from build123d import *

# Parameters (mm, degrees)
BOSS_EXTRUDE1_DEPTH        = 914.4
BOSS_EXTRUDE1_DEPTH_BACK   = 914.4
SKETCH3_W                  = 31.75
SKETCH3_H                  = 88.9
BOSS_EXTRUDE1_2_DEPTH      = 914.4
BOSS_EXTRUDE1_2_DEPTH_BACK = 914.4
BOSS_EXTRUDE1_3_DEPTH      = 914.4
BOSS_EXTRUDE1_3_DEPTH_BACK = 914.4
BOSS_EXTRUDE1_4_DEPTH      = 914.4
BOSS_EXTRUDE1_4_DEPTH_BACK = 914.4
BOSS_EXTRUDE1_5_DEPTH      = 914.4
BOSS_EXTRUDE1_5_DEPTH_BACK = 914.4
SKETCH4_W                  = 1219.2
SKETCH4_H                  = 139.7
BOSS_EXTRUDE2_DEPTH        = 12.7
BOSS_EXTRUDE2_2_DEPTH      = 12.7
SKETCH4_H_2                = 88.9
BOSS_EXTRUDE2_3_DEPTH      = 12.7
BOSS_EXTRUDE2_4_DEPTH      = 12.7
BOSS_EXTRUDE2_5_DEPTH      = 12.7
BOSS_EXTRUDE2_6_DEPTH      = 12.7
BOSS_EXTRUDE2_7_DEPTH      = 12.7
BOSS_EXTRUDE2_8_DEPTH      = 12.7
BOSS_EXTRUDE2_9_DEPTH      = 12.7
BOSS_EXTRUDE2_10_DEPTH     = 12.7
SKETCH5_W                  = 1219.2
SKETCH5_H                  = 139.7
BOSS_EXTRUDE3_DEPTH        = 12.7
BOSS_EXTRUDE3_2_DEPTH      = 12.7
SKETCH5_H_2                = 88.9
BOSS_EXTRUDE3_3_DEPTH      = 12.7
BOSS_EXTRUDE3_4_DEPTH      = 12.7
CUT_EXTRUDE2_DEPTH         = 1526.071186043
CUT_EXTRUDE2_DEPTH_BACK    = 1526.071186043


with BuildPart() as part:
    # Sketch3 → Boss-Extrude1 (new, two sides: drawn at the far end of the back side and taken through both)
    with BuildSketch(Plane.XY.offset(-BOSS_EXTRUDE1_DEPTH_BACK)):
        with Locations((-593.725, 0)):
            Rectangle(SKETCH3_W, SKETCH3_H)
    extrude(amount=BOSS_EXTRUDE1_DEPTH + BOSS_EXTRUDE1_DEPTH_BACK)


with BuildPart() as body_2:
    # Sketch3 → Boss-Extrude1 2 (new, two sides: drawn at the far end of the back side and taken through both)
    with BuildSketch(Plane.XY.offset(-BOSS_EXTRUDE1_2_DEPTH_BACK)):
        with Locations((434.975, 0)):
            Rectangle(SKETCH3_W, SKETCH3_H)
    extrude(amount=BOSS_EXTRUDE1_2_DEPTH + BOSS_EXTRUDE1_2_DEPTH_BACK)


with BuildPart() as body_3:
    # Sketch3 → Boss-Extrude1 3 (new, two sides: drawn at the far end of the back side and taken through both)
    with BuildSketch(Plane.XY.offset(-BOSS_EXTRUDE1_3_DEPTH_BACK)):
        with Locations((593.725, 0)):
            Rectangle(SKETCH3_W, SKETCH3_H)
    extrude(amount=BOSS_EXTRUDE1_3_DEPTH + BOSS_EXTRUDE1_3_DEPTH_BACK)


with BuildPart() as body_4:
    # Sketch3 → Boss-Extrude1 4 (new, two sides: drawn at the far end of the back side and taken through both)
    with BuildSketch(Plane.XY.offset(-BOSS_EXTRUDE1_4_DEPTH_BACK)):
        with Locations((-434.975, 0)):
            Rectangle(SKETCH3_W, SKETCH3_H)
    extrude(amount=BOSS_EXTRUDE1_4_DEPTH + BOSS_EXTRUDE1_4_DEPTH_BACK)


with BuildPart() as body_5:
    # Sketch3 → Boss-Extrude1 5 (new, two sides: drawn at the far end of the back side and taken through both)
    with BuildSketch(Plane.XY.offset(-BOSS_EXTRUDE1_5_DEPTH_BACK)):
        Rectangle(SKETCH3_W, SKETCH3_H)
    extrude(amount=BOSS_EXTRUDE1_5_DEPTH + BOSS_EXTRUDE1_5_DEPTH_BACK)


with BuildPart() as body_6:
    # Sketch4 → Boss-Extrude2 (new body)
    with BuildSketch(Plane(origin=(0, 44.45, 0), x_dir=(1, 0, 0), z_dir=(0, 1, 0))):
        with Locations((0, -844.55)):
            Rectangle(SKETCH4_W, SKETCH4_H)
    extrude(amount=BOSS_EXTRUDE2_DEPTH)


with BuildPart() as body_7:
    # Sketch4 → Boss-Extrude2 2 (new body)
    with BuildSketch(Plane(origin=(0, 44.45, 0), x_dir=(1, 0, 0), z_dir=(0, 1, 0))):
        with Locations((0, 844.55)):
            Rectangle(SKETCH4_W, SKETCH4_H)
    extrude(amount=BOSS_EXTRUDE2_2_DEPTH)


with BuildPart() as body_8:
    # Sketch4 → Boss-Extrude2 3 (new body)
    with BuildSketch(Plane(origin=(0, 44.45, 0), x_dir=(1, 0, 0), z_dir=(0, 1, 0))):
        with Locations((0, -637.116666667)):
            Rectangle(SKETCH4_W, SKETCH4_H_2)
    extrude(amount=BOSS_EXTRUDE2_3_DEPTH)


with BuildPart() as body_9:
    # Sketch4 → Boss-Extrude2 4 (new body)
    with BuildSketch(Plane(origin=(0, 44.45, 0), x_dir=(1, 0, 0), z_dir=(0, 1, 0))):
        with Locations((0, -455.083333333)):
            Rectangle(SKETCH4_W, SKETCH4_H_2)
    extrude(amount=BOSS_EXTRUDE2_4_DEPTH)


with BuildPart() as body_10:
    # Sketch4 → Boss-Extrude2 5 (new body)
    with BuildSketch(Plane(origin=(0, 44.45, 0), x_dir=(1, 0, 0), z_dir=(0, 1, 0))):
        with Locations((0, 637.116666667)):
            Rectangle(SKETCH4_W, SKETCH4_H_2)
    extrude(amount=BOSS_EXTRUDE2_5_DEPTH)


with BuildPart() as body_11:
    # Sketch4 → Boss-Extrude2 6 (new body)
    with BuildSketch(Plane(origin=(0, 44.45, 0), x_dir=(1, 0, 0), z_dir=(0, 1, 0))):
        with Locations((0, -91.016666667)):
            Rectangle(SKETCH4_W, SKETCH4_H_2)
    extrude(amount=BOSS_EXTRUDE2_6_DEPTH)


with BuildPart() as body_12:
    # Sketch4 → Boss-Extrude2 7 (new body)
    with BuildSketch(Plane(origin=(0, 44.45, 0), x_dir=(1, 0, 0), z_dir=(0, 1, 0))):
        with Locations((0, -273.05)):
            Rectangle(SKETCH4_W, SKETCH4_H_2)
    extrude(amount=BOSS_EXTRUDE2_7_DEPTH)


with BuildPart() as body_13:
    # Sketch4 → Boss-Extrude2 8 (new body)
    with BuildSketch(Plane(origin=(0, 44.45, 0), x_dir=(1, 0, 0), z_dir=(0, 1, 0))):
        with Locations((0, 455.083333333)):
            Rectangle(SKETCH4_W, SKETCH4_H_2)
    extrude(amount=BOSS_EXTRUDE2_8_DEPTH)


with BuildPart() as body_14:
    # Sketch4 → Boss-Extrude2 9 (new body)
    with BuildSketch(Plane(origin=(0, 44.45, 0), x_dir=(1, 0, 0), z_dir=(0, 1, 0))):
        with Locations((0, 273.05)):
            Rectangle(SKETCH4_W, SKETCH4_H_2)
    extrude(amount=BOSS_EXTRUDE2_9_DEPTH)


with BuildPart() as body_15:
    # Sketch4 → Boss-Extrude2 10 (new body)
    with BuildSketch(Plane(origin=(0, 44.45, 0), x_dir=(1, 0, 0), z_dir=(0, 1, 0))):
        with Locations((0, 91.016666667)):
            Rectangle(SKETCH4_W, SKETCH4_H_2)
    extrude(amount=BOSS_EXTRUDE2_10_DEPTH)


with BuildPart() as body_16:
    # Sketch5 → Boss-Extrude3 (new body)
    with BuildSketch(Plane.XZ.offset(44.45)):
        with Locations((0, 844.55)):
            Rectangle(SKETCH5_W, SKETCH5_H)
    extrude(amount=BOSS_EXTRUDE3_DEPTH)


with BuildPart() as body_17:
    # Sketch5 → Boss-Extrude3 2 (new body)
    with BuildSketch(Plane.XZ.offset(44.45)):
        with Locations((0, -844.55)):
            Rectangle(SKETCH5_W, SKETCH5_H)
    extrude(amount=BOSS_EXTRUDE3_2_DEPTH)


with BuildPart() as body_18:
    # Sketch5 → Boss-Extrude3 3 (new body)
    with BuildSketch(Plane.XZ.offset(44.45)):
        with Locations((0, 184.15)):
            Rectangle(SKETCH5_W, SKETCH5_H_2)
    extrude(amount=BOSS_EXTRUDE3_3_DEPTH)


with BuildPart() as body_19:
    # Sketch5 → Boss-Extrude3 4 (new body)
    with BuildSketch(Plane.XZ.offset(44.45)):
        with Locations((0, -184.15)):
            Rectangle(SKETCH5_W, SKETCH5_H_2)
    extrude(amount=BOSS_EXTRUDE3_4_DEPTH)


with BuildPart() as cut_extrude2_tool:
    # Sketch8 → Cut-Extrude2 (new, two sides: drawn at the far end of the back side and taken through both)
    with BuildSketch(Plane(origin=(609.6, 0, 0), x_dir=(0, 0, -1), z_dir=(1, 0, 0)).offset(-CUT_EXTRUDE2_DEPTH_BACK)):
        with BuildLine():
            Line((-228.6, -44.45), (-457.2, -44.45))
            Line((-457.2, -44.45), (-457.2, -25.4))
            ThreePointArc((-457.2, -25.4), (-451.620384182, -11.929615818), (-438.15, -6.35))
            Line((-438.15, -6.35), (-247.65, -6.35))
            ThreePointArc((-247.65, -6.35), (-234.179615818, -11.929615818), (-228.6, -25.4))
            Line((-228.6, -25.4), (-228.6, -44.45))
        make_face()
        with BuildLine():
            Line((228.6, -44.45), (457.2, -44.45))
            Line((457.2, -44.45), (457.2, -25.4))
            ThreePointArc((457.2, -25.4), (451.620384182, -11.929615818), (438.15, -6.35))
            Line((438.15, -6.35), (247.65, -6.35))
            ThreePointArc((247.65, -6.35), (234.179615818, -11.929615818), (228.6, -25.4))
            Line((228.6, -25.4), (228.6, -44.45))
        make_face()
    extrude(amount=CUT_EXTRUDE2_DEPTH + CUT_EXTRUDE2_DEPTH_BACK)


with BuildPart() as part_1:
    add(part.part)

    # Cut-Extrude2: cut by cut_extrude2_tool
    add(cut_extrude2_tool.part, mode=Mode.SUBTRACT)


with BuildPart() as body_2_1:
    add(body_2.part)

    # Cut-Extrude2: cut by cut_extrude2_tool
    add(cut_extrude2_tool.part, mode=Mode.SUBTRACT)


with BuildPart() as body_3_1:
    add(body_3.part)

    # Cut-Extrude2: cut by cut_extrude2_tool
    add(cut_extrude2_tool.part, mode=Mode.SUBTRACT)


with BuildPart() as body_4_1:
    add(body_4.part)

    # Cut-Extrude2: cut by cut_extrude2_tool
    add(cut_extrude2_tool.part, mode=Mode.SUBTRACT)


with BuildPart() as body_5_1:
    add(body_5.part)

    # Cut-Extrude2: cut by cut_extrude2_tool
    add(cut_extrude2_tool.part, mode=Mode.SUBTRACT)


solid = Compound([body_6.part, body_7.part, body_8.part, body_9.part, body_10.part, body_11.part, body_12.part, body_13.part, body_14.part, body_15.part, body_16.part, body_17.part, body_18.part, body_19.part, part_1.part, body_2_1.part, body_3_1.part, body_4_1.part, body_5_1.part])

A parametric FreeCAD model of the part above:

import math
import FreeCAD as App
import Part
import Sketcher

V = App.Vector
Q = App.Units.Quantity

doc = App.newDocument("Part")
body = doc.addObject("PartDesign::Body", "Body")

# Sketch on XY plane
sketch1 = body.newObject("Sketcher::SketchObject", "Sketch")
sketch1.AttachmentSupport = (doc.getObject("XY_Plane"), [""])
sketch1.MapMode = "FlatFace"
sketch1.addGeometry([
    Part.LineSegment(V(-610, 44, 0), V(-610, -44, 0)),
    Part.LineSegment(V(-610, -44, 0), V(-578, -44, 0)),
    Part.LineSegment(V(-578, -44, 0), V(-578, 44, 0)),
    Part.LineSegment(V(-578, 44, 0), V(-610, 44, 0)),
], False)
sketch1.addConstraint([
    Sketcher.Constraint("Coincident", 0, 2, 1, 1),
    Sketcher.Constraint("Coincident", 1, 2, 2, 1),
    Sketcher.Constraint("Coincident", 2, 2, 3, 1),
    Sketcher.Constraint("Coincident", 3, 2, 0, 1),
    Sketcher.Constraint("Vertical", 0),
    Sketcher.Constraint("Horizontal", 1),
    Sketcher.Constraint("Vertical", 2),
    Sketcher.Constraint("Horizontal", 3),
    Sketcher.Constraint("DistanceY", 0, 2, 0, 1, Q("3.5 in")),
    Sketcher.Constraint("DistanceX", 0, 2, -1, 1, Q("24 in")),
    Sketcher.Constraint("DistanceX", 1, 1, 1, 2, Q("1.25 in")),
    Sketcher.Constraint("DistanceY", 0, 2, -1, 1, Q("1.75 in")),
])
pad1 = body.newObject("PartDesign::Pad", "Pad")
pad1.Profile = sketch1
pad1.Type = "TwoLengths"
pad1.Length = Q("36 in")
pad1.Length2 = Q("36 in")
body2 = doc.addObject("PartDesign::Body", "Body001")

# Sketch on XY plane
sketch2 = body2.newObject("Sketcher::SketchObject", "Sketch001")
sketch2.AttachmentSupport = (doc.getObject("XY_Plane001"), [""])
sketch2.MapMode = "FlatFace"
sketch2.addGeometry([
    Part.LineSegment(V(419, 44, 0), V(419, -44, 0)),
    Part.LineSegment(V(419, -44, 0), V(451, -44, 0)),
    Part.LineSegment(V(451, -44, 0), V(451, 44, 0)),
    Part.LineSegment(V(451, 44, 0), V(419, 44, 0)),
], False)
sketch2.addConstraint([
    Sketcher.Constraint("Coincident", 0, 2, 1, 1),
    Sketcher.Constraint("Coincident", 1, 2, 2, 1),
    Sketcher.Constraint("Coincident", 2, 2, 3, 1),
    Sketcher.Constraint("Coincident", 3, 2, 0, 1),
    Sketcher.Constraint("Vertical", 0),
    Sketcher.Constraint("Horizontal", 1),
    Sketcher.Constraint("Vertical", 2),
    Sketcher.Constraint("Horizontal", 3),
    Sketcher.Constraint("DistanceY", 0, 2, 0, 1, Q("3.5 in")),
    Sketcher.Constraint("DistanceX", 1, 1, 1, 2, Q("1.25 in")),
    Sketcher.Constraint("DistanceX", -1, 1, 0, 2, Q("16.5 in")),
    Sketcher.Constraint("DistanceY", 0, 2, -1, 1, Q("1.75 in")),
])
pad2 = body2.newObject("PartDesign::Pad", "Pad001")
pad2.Profile = sketch2
pad2.Type = "TwoLengths"
pad2.Length = Q("36 in")
pad2.Length2 = Q("36 in")
body3 = doc.addObject("PartDesign::Body", "Body002")

# Sketch on XY plane
sketch3 = body3.newObject("Sketcher::SketchObject", "Sketch002")
sketch3.AttachmentSupport = (doc.getObject("XY_Plane002"), [""])
sketch3.MapMode = "FlatFace"
sketch3.addGeometry([
    Part.LineSegment(V(578, 44, 0), V(578, -44, 0)),
    Part.LineSegment(V(578, -44, 0), V(610, -44, 0)),
    Part.LineSegment(V(610, -44, 0), V(610, 44, 0)),
    Part.LineSegment(V(610, 44, 0), V(578, 44, 0)),
], False)
sketch3.addConstraint([
    Sketcher.Constraint("Coincident", 0, 2, 1, 1),
    Sketcher.Constraint("Coincident", 1, 2, 2, 1),
    Sketcher.Constraint("Coincident", 2, 2, 3, 1),
    Sketcher.Constraint("Coincident", 3, 2, 0, 1),
    Sketcher.Constraint("Vertical", 0),
    Sketcher.Constraint("Horizontal", 1),
    Sketcher.Constraint("Vertical", 2),
    Sketcher.Constraint("Horizontal", 3),
    Sketcher.Constraint("DistanceY", 0, 2, 0, 1, Q("3.5 in")),
    Sketcher.Constraint("DistanceX", -1, 1, 1, 2, Q("24 in")),
    Sketcher.Constraint("DistanceX", 1, 1, 1, 2, Q("1.25 in")),
    Sketcher.Constraint("DistanceY", 0, 2, -1, 1, Q("1.75 in")),
])
pad3 = body3.newObject("PartDesign::Pad", "Pad002")
pad3.Profile = sketch3
pad3.Type = "TwoLengths"
pad3.Length = Q("36 in")
pad3.Length2 = Q("36 in")
body4 = doc.addObject("PartDesign::Body", "Body003")

# Sketch on XY plane
sketch4 = body4.newObject("Sketcher::SketchObject", "Sketch003")
sketch4.AttachmentSupport = (doc.getObject("XY_Plane003"), [""])
sketch4.MapMode = "FlatFace"
sketch4.addGeometry([
    Part.LineSegment(V(-451, 44, 0), V(-451, -44, 0)),
    Part.LineSegment(V(-451, -44, 0), V(-419, -44, 0)),
    Part.LineSegment(V(-419, -44, 0), V(-419, 44, 0)),
    Part.LineSegment(V(-419, 44, 0), V(-451, 44, 0)),
], False)
sketch4.addConstraint([
    Sketcher.Constraint("Coincident", 0, 2, 1, 1),
    Sketcher.Constraint("Coincident", 1, 2, 2, 1),
    Sketcher.Constraint("Coincident", 2, 2, 3, 1),
    Sketcher.Constraint("Coincident", 3, 2, 0, 1),
    Sketcher.Constraint("Vertical", 0),
    Sketcher.Constraint("Horizontal", 1),
    Sketcher.Constraint("Vertical", 2),
    Sketcher.Constraint("Horizontal", 3),
    Sketcher.Constraint("DistanceY", 0, 2, 0, 1, Q("3.5 in")),
    Sketcher.Constraint("DistanceX", 1, 1, 1, 2, Q("1.25 in")),
    Sketcher.Constraint("DistanceX", 1, 2, -1, 1, Q("16.5 in")),
    Sketcher.Constraint("DistanceY", 0, 2, -1, 1, Q("1.75 in")),
])
pad4 = body4.newObject("PartDesign::Pad", "Pad003")
pad4.Profile = sketch4
pad4.Type = "TwoLengths"
pad4.Length = Q("36 in")
pad4.Length2 = Q("36 in")
body5 = doc.addObject("PartDesign::Body", "Body004")

# Sketch on XY plane
sketch5 = body5.newObject("Sketcher::SketchObject", "Sketch004")
sketch5.AttachmentSupport = (doc.getObject("XY_Plane004"), [""])
sketch5.MapMode = "FlatFace"
sketch5.addGeometry([
    Part.LineSegment(V(-16, 44, 0), V(-16, -44, 0)),
    Part.LineSegment(V(-16, -44, 0), V(16, -44, 0)),
    Part.LineSegment(V(16, -44, 0), V(16, 44, 0)),
    Part.LineSegment(V(16, 44, 0), V(-16, 44, 0)),
], False)
sketch5.addConstraint([
    Sketcher.Constraint("Coincident", 0, 2, 1, 1),
    Sketcher.Constraint("Coincident", 1, 2, 2, 1),
    Sketcher.Constraint("Coincident", 2, 2, 3, 1),
    Sketcher.Constraint("Coincident", 3, 2, 0, 1),
    Sketcher.Constraint("Vertical", 0),
    Sketcher.Constraint("Horizontal", 1),
    Sketcher.Constraint("Vertical", 2),
    Sketcher.Constraint("Horizontal", 3),
    Sketcher.Constraint("Symmetric", 0, 2, 2, 2, -1, 1),
    Sketcher.Constraint("DistanceY", 0, 2, 0, 1, Q("3.5 in")),
    Sketcher.Constraint("DistanceX", 1, 1, 1, 2, Q("1.25 in")),
])
pad5 = body5.newObject("PartDesign::Pad", "Pad004")
pad5.Profile = sketch5
pad5.Type = "TwoLengths"
pad5.Length = Q("36 in")
pad5.Length2 = Q("36 in")
body6 = doc.addObject("PartDesign::Body", "Body005")

# Sketch on XZ plane
sketch6 = body6.newObject("Sketcher::SketchObject", "Sketch005")
sketch6.AttachmentSupport = (doc.getObject("XZ_Plane005"), [""])
sketch6.MapMode = "FlatFace"
sketch6.AttachmentOffset = App.Placement(V(0, 0, -1.75 * 25.4), App.Rotation())
sketch6.addGeometry([
    Part.LineSegment(V(-610, 775, 0), V(-610, 914, 0)),
    Part.LineSegment(V(-610, 914, 0), V(610, 914, 0)),
    Part.LineSegment(V(610, 914, 0), V(610, 775, 0)),
    Part.LineSegment(V(610, 775, 0), V(-610, 775, 0)),
], False)
sketch6.addConstraint([
    Sketcher.Constraint("Coincident", 0, 2, 1, 1),
    Sketcher.Constraint("Coincident", 1, 2, 2, 1),
    Sketcher.Constraint("Coincident", 2, 2, 3, 1),
    Sketcher.Constraint("Coincident", 3, 2, 0, 1),
    Sketcher.Constraint("Vertical", 0),
    Sketcher.Constraint("Horizontal", 1),
    Sketcher.Constraint("Vertical", 2),
    Sketcher.Constraint("Horizontal", 3),
    Sketcher.Constraint("DistanceX", 1, 1, 1, 2, Q("48 in")),
    Sketcher.Constraint("DistanceY", 0, 1, 0, 2, Q("5.5 in")),
    Sketcher.Constraint("DistanceX", 0, 2, -1, 1, Q("24 in")),
    Sketcher.Constraint("DistanceY", -1, 1, 0, 2, Q("36 in")),
])
pad6 = body6.newObject("PartDesign::Pad", "Pad005")
pad6.Profile = sketch6
pad6.Length = Q("0.5 in")
pad6.Reversed = True
body7 = doc.addObject("PartDesign::Body", "Body006")

# Sketch on XZ plane
sketch7 = body7.newObject("Sketcher::SketchObject", "Sketch006")
sketch7.AttachmentSupport = (doc.getObject("XZ_Plane006"), [""])
sketch7.MapMode = "FlatFace"
sketch7.AttachmentOffset = App.Placement(V(0, 0, -1.75 * 25.4), App.Rotation())
sketch7.addGeometry([
    Part.LineSegment(V(-610, -914, 0), V(-610, -775, 0)),
    Part.LineSegment(V(-610, -775, 0), V(610, -775, 0)),
    Part.LineSegment(V(610, -775, 0), V(610, -914, 0)),
    Part.LineSegment(V(610, -914, 0), V(-610, -914, 0)),
], False)
sketch7.addConstraint([
    Sketcher.Constraint("Coincident", 0, 2, 1, 1),
    Sketcher.Constraint("Coincident", 1, 2, 2, 1),
    Sketcher.Constraint("Coincident", 2, 2, 3, 1),
    Sketcher.Constraint("Coincident", 3, 2, 0, 1),
    Sketcher.Constraint("Vertical", 0),
    Sketcher.Constraint("Horizontal", 1),
    Sketcher.Constraint("Vertical", 2),
    Sketcher.Constraint("Horizontal", 3),
    Sketcher.Constraint("DistanceX", 1, 1, 1, 2, Q("48 in")),
    Sketcher.Constraint("DistanceY", 0, 1, 0, 2, Q("5.5 in")),
    Sketcher.Constraint("DistanceX", 0, 2, -1, 1, Q("24 in")),
    Sketcher.Constraint("DistanceY", 2, 2, -1, 1, Q("36 in")),
])
pad7 = body7.newObject("PartDesign::Pad", "Pad006")
pad7.Profile = sketch7
pad7.Length = Q("0.5 in")
pad7.Reversed = True
body8 = doc.addObject("PartDesign::Body", "Body007")

# Sketch on XZ plane
sketch8 = body8.newObject("Sketcher::SketchObject", "Sketch007")
sketch8.AttachmentSupport = (doc.getObject("XZ_Plane007"), [""])
sketch8.MapMode = "FlatFace"
sketch8.AttachmentOffset = App.Placement(V(0, 0, -1.75 * 25.4), App.Rotation())
sketch8.addGeometry([
    Part.LineSegment(V(-610, 593, 0), V(-610, 682, 0)),
    Part.LineSegment(V(-610, 682, 0), V(610, 682, 0)),
    Part.LineSegment(V(610, 682, 0), V(610, 593, 0)),
    Part.LineSegment(V(610, 593, 0), V(-610, 593, 0)),
], False)
sketch8.addConstraint([
    Sketcher.Constraint("Coincident", 0, 2, 1, 1),
    Sketcher.Constraint("Coincident", 1, 2, 2, 1),
    Sketcher.Constraint("Coincident", 2, 2, 3, 1),
    Sketcher.Constraint("Coincident", 3, 2, 0, 1),
    Sketcher.Constraint("Vertical", 0),
    Sketcher.Constraint("Horizontal", 1),
    Sketcher.Constraint("Vertical", 2),
    Sketcher.Constraint("Horizontal", 3),
    Sketcher.Constraint("DistanceX", 1, 1, 1, 2, Q("48 in")),
    Sketcher.Constraint("DistanceY", 0, 1, 0, 2, Q("3.5 in")),
    Sketcher.Constraint("DistanceX", 0, 2, -1, 1, Q("24 in")),
    Sketcher.Constraint("DistanceY", -1, 1, 0, 2, Q("681.566667 mm")),
])
pad8 = body8.newObject("PartDesign::Pad", "Pad007")
pad8.Profile = sketch8
pad8.Length = Q("0.5 in")
pad8.Reversed = True
body9 = doc.addObject("PartDesign::Body", "Body008")

# Sketch on XZ plane
sketch9 = body9.newObject("Sketcher::SketchObject", "Sketch008")
sketch9.AttachmentSupport = (doc.getObject("XZ_Plane008"), [""])
sketch9.MapMode = "FlatFace"
sketch9.AttachmentOffset = App.Placement(V(0, 0, -1.75 * 25.4), App.Rotation())
sketch9.addGeometry([
    Part.LineSegment(V(-610, 411, 0), V(-610, 500, 0)),
    Part.LineSegment(V(-610, 500, 0), V(610, 500, 0)),
    Part.LineSegment(V(610, 500, 0), V(610, 411, 0)),
    Part.LineSegment(V(610, 411, 0), V(-610, 411, 0)),
], False)
sketch9.addConstraint([
    Sketcher.Constraint("Coincident", 0, 2, 1, 1),
    Sketcher.Constraint("Coincident", 1, 2, 2, 1),
    Sketcher.Constraint("Coincident", 2, 2, 3, 1),
    Sketcher.Constraint("Coincident", 3, 2, 0, 1),
    Sketcher.Constraint("Vertical", 0),
    Sketcher.Constraint("Horizontal", 1),
    Sketcher.Constraint("Vertical", 2),
    Sketcher.Constraint("Horizontal", 3),
    Sketcher.Constraint("DistanceX", 1, 1, 1, 2, Q("48 in")),
    Sketcher.Constraint("DistanceY", 0, 1, 0, 2, Q("3.5 in")),
    Sketcher.Constraint("DistanceX", 0, 2, -1, 1, Q("24 in")),
    Sketcher.Constraint("DistanceY", -1, 1, 0, 2, Q("499.533333 mm")),
])
pad9 = body9.newObject("PartDesign::Pad", "Pad008")
pad9.Profile = sketch9
pad9.Length = Q("0.5 in")
pad9.Reversed = True
body10 = doc.addObject("PartDesign::Body", "Body009")

# Sketch on XZ plane
sketch10 = body10.newObject("Sketcher::SketchObject", "Sketch009")
sketch10.AttachmentSupport = (doc.getObject("XZ_Plane009"), [""])
sketch10.MapMode = "FlatFace"
sketch10.AttachmentOffset = App.Placement(V(0, 0, -1.75 * 25.4), App.Rotation())
sketch10.addGeometry([
    Part.LineSegment(V(-610, -682, 0), V(-610, -593, 0)),
    Part.LineSegment(V(-610, -593, 0), V(610, -593, 0)),
    Part.LineSegment(V(610, -593, 0), V(610, -682, 0)),
    Part.LineSegment(V(610, -682, 0), V(-610, -682, 0)),
], False)
sketch10.addConstraint([
    Sketcher.Constraint("Coincident", 0, 2, 1, 1),
    Sketcher.Constraint("Coincident", 1, 2, 2, 1),
    Sketcher.Constraint("Coincident", 2, 2, 3, 1),
    Sketcher.Constraint("Coincident", 3, 2, 0, 1),
    Sketcher.Constraint("Vertical", 0),
    Sketcher.Constraint("Horizontal", 1),
    Sketcher.Constraint("Vertical", 2),
    Sketcher.Constraint("Horizontal", 3),
    Sketcher.Constraint("DistanceX", 1, 1, 1, 2, Q("48 in")),
    Sketcher.Constraint("DistanceY", 0, 1, 0, 2, Q("3.5 in")),
    Sketcher.Constraint("DistanceX", 0, 2, -1, 1, Q("24 in")),
    Sketcher.Constraint("DistanceY", 0, 2, -1, 1, Q("592.666667 mm")),
])
pad10 = body10.newObject("PartDesign::Pad", "Pad009")
pad10.Profile = sketch10
pad10.Length = Q("0.5 in")
pad10.Reversed = True
body11 = doc.addObject("PartDesign::Body", "Body010")

# Sketch on XZ plane
sketch11 = body11.newObject("Sketcher::SketchObject", "Sketch010")
sketch11.AttachmentSupport = (doc.getObject("XZ_Plane010"), [""])
sketch11.MapMode = "FlatFace"
sketch11.AttachmentOffset = App.Placement(V(0, 0, -1.75 * 25.4), App.Rotation())
sketch11.addGeometry([
    Part.LineSegment(V(-610, 47, 0), V(-610, 135, 0)),
    Part.LineSegment(V(-610, 135, 0), V(610, 135, 0)),
    Part.LineSegment(V(610, 135, 0), V(610, 47, 0)),
    Part.LineSegment(V(610, 47, 0), V(-610, 47, 0)),
], False)
sketch11.addConstraint([
    Sketcher.Constraint("Coincident", 0, 2, 1, 1),
    Sketcher.Constraint("Coincident", 1, 2, 2, 1),
    Sketcher.Constraint("Coincident", 2, 2, 3, 1),
    Sketcher.Constraint("Coincident", 3, 2, 0, 1),
    Sketcher.Constraint("Vertical", 0),
    Sketcher.Constraint("Horizontal", 1),
    Sketcher.Constraint("Vertical", 2),
    Sketcher.Constraint("Horizontal", 3),
    Sketcher.Constraint("DistanceX", 1, 1, 1, 2, Q("48 in")),
    Sketcher.Constraint("DistanceY", 0, 1, 0, 2, Q("3.5 in")),
    Sketcher.Constraint("DistanceX", 0, 2, -1, 1, Q("24 in")),
    Sketcher.Constraint("DistanceY", -1, 1, 0, 2, Q("135.466667 mm")),
])
pad11 = body11.newObject("PartDesign::Pad", "Pad010")
pad11.Profile = sketch11
pad11.Length = Q("0.5 in")
pad11.Reversed = True
body12 = doc.addObject("PartDesign::Body", "Body011")

# Sketch on XZ plane
sketch12 = body12.newObject("Sketcher::SketchObject", "Sketch011")
sketch12.AttachmentSupport = (doc.getObject("XZ_Plane011"), [""])
sketch12.MapMode = "FlatFace"
sketch12.AttachmentOffset = App.Placement(V(0, 0, -1.75 * 25.4), App.Rotation())
sketch12.addGeometry([
    Part.LineSegment(V(-610, 229, 0), V(-610, 318, 0)),
    Part.LineSegment(V(-610, 318, 0), V(610, 318, 0)),
    Part.LineSegment(V(610, 318, 0), V(610, 229, 0)),
    Part.LineSegment(V(610, 229, 0), V(-610, 229, 0)),
], False)
sketch12.addConstraint([
    Sketcher.Constraint("Coincident", 0, 2, 1, 1),
    Sketcher.Constraint("Coincident", 1, 2, 2, 1),
    Sketcher.Constraint("Coincident", 2, 2, 3, 1),
    Sketcher.Constraint("Coincident", 3, 2, 0, 1),
    Sketcher.Constraint("Vertical", 0),
    Sketcher.Constraint("Horizontal", 1),
    Sketcher.Constraint("Vertical", 2),
    Sketcher.Constraint("Horizontal", 3),
    Sketcher.Constraint("DistanceX", 1, 1, 1, 2, Q("48 in")),
    Sketcher.Constraint("DistanceY", 0, 1, 0, 2, Q("3.5 in")),
    Sketcher.Constraint("DistanceX", 0, 2, -1, 1, Q("24 in")),
    Sketcher.Constraint("DistanceY", -1, 1, 2, 2, Q("9 in")),
])
pad12 = body12.newObject("PartDesign::Pad", "Pad011")
pad12.Profile = sketch12
pad12.Length = Q("0.5 in")
pad12.Reversed = True
body13 = doc.addObject("PartDesign::Body", "Body012")

# Sketch on XZ plane
sketch13 = body13.newObject("Sketcher::SketchObject", "Sketch012")
sketch13.AttachmentSupport = (doc.getObject("XZ_Plane012"), [""])
sketch13.MapMode = "FlatFace"
sketch13.AttachmentOffset = App.Placement(V(0, 0, -1.75 * 25.4), App.Rotation())
sketch13.addGeometry([
    Part.LineSegment(V(-610, -500, 0), V(-610, -411, 0)),
    Part.LineSegment(V(-610, -411, 0), V(610, -411, 0)),
    Part.LineSegment(V(610, -411, 0), V(610, -500, 0)),
    Part.LineSegment(V(610, -500, 0), V(-610, -500, 0)),
], False)
sketch13.addConstraint([
    Sketcher.Constraint("Coincident", 0, 2, 1, 1),
    Sketcher.Constraint("Coincident", 1, 2, 2, 1),
    Sketcher.Constraint("Coincident", 2, 2, 3, 1),
    Sketcher.Constraint("Coincident", 3, 2, 0, 1),
    Sketcher.Constraint("Vertical", 0),
    Sketcher.Constraint("Horizontal", 1),
    Sketcher.Constraint("Vertical", 2),
    Sketcher.Constraint("Horizontal", 3),
    Sketcher.Constraint("DistanceX", 1, 1, 1, 2, Q("48 in")),
    Sketcher.Constraint("DistanceY", 0, 1, 0, 2, Q("3.5 in")),
    Sketcher.Constraint("DistanceX", 0, 2, -1, 1, Q("24 in")),
    Sketcher.Constraint("DistanceY", 0, 2, -1, 1, Q("410.633333 mm")),
])
pad13 = body13.newObject("PartDesign::Pad", "Pad012")
pad13.Profile = sketch13
pad13.Length = Q("0.5 in")
pad13.Reversed = True
body14 = doc.addObject("PartDesign::Body", "Body013")

# Sketch on XZ plane
sketch14 = body14.newObject("Sketcher::SketchObject", "Sketch013")
sketch14.AttachmentSupport = (doc.getObject("XZ_Plane013"), [""])
sketch14.MapMode = "FlatFace"
sketch14.AttachmentOffset = App.Placement(V(0, 0, -1.75 * 25.4), App.Rotation())
sketch14.addGeometry([
    Part.LineSegment(V(-610, -318, 0), V(-610, -229, 0)),
    Part.LineSegment(V(-610, -229, 0), V(610, -229, 0)),
    Part.LineSegment(V(610, -229, 0), V(610, -318, 0)),
    Part.LineSegment(V(610, -318, 0), V(-610, -318, 0)),
], False)
sketch14.addConstraint([
    Sketcher.Constraint("Coincident", 0, 2, 1, 1),
    Sketcher.Constraint("Coincident", 1, 2, 2, 1),
    Sketcher.Constraint("Coincident", 2, 2, 3, 1),
    Sketcher.Constraint("Coincident", 3, 2, 0, 1),
    Sketcher.Constraint("Vertical", 0),
    Sketcher.Constraint("Horizontal", 1),
    Sketcher.Constraint("Vertical", 2),
    Sketcher.Constraint("Horizontal", 3),
    Sketcher.Constraint("DistanceX", 1, 1, 1, 2, Q("48 in")),
    Sketcher.Constraint("DistanceY", 0, 1, 0, 2, Q("3.5 in")),
    Sketcher.Constraint("DistanceX", 0, 2, -1, 1, Q("24 in")),
    Sketcher.Constraint("DistanceY", 0, 2, -1, 1, Q("9 in")),
])
pad14 = body14.newObject("PartDesign::Pad", "Pad013")
pad14.Profile = sketch14
pad14.Length = Q("0.5 in")
pad14.Reversed = True
body15 = doc.addObject("PartDesign::Body", "Body014")

# Sketch on XZ plane
sketch15 = body15.newObject("Sketcher::SketchObject", "Sketch014")
sketch15.AttachmentSupport = (doc.getObject("XZ_Plane014"), [""])
sketch15.MapMode = "FlatFace"
sketch15.AttachmentOffset = App.Placement(V(0, 0, -1.75 * 25.4), App.Rotation())
sketch15.addGeometry([
    Part.LineSegment(V(-610, -135, 0), V(-610, -47, 0)),
    Part.LineSegment(V(-610, -47, 0), V(610, -47, 0)),
    Part.LineSegment(V(610, -47, 0), V(610, -135, 0)),
    Part.LineSegment(V(610, -135, 0), V(-610, -135, 0)),
], False)
sketch15.addConstraint([
    Sketcher.Constraint("Coincident", 0, 2, 1, 1),
    Sketcher.Constraint("Coincident", 1, 2, 2, 1),
    Sketcher.Constraint("Coincident", 2, 2, 3, 1),
    Sketcher.Constraint("Coincident", 3, 2, 0, 1),
    Sketcher.Constraint("Vertical", 0),
    Sketcher.Constraint("Horizontal", 1),
    Sketcher.Constraint("Vertical", 2),
    Sketcher.Constraint("Horizontal", 3),
    Sketcher.Constraint("DistanceX", 1, 1, 1, 2, Q("48 in")),
    Sketcher.Constraint("DistanceY", 0, 1, 0, 2, Q("3.5 in")),
    Sketcher.Constraint("DistanceX", 0, 2, -1, 1, Q("24 in")),
    Sketcher.Constraint("DistanceY", 0, 2, -1, 1, Q("46.566667 mm")),
])
pad15 = body15.newObject("PartDesign::Pad", "Pad014")
pad15.Profile = sketch15
pad15.Length = Q("0.5 in")
pad15.Reversed = True
body16 = doc.addObject("PartDesign::Body", "Body015")

# Sketch on XZ plane
sketch16 = body16.newObject("Sketcher::SketchObject", "Sketch015")
sketch16.AttachmentSupport = (doc.getObject("XZ_Plane015"), [""])
sketch16.MapMode = "FlatFace"
sketch16.AttachmentOffset = App.Placement(V(0, 0, 1.75 * 25.4), App.Rotation())
sketch16.addGeometry([
    Part.LineSegment(V(-610, 914, 0), V(-610, 775, 0)),
    Part.LineSegment(V(-610, 775, 0), V(610, 775, 0)),
    Part.LineSegment(V(610, 775, 0), V(610, 914, 0)),
    Part.LineSegment(V(610, 914, 0), V(-610, 914, 0)),
], False)
sketch16.addConstraint([
    Sketcher.Constraint("Coincident", 0, 2, 1, 1),
    Sketcher.Constraint("Coincident", 1, 2, 2, 1),
    Sketcher.Constraint("Coincident", 2, 2, 3, 1),
    Sketcher.Constraint("Coincident", 3, 2, 0, 1),
    Sketcher.Constraint("Vertical", 0),
    Sketcher.Constraint("Horizontal", 1),
    Sketcher.Constraint("Vertical", 2),
    Sketcher.Constraint("Horizontal", 3),
    Sketcher.Constraint("DistanceX", 1, 1, 1, 2, Q("48 in")),
    Sketcher.Constraint("DistanceY", 0, 2, 0, 1, Q("5.5 in")),
    Sketcher.Constraint("DistanceX", 0, 2, -1, 1, Q("24 in")),
    Sketcher.Constraint("DistanceY", -1, 1, 2, 2, Q("36 in")),
])
pad16 = body16.newObject("PartDesign::Pad", "Pad015")
pad16.Profile = sketch16
pad16.Length = Q("0.5 in")
body17 = doc.addObject("PartDesign::Body", "Body016")

# Sketch on XZ plane
sketch17 = body17.newObject("Sketcher::SketchObject", "Sketch016")
sketch17.AttachmentSupport = (doc.getObject("XZ_Plane016"), [""])
sketch17.MapMode = "FlatFace"
sketch17.AttachmentOffset = App.Placement(V(0, 0, 1.75 * 25.4), App.Rotation())
sketch17.addGeometry([
    Part.LineSegment(V(-610, -775, 0), V(-610, -914, 0)),
    Part.LineSegment(V(-610, -914, 0), V(610, -914, 0)),
    Part.LineSegment(V(610, -914, 0), V(610, -775, 0)),
    Part.LineSegment(V(610, -775, 0), V(-610, -775, 0)),
], False)
sketch17.addConstraint([
    Sketcher.Constraint("Coincident", 0, 2, 1, 1),
    Sketcher.Constraint("Coincident", 1, 2, 2, 1),
    Sketcher.Constraint("Coincident", 2, 2, 3, 1),
    Sketcher.Constraint("Coincident", 3, 2, 0, 1),
    Sketcher.Constraint("Vertical", 0),
    Sketcher.Constraint("Horizontal", 1),
    Sketcher.Constraint("Vertical", 2),
    Sketcher.Constraint("Horizontal", 3),
    Sketcher.Constraint("DistanceX", 1, 1, 1, 2, Q("48 in")),
    Sketcher.Constraint("DistanceY", 0, 2, 0, 1, Q("5.5 in")),
    Sketcher.Constraint("DistanceX", 0, 2, -1, 1, Q("24 in")),
    Sketcher.Constraint("DistanceY", 0, 2, -1, 1, Q("36 in")),
])
pad17 = body17.newObject("PartDesign::Pad", "Pad016")
pad17.Profile = sketch17
pad17.Length = Q("0.5 in")
body18 = doc.addObject("PartDesign::Body", "Body017")

# Sketch on XZ plane
sketch18 = body18.newObject("Sketcher::SketchObject", "Sketch017")
sketch18.AttachmentSupport = (doc.getObject("XZ_Plane017"), [""])
sketch18.MapMode = "FlatFace"
sketch18.AttachmentOffset = App.Placement(V(0, 0, 1.75 * 25.4), App.Rotation())
sketch18.addGeometry([
    Part.LineSegment(V(-610, 229, 0), V(-610, 140, 0)),
    Part.LineSegment(V(-610, 140, 0), V(610, 140, 0)),
    Part.LineSegment(V(610, 140, 0), V(610, 229, 0)),
    Part.LineSegment(V(610, 229, 0), V(-610, 229, 0)),
], False)
sketch18.addConstraint([
    Sketcher.Constraint("Coincident", 0, 2, 1, 1),
    Sketcher.Constraint("Coincident", 1, 2, 2, 1),
    Sketcher.Constraint("Coincident", 2, 2, 3, 1),
    Sketcher.Constraint("Coincident", 3, 2, 0, 1),
    Sketcher.Constraint("Vertical", 0),
    Sketcher.Constraint("Horizontal", 1),
    Sketcher.Constraint("Vertical", 2),
    Sketcher.Constraint("Horizontal", 3),
    Sketcher.Constraint("DistanceX", 1, 1, 1, 2, Q("48 in")),
    Sketcher.Constraint("DistanceY", 0, 2, 0, 1, Q("3.5 in")),
    Sketcher.Constraint("DistanceX", 0, 2, -1, 1, Q("24 in")),
    Sketcher.Constraint("DistanceY", -1, 1, 2, 2, Q("9 in")),
])
pad18 = body18.newObject("PartDesign::Pad", "Pad017")
pad18.Profile = sketch18
pad18.Length = Q("0.5 in")
body19 = doc.addObject("PartDesign::Body", "Body018")

# Sketch on XZ plane
sketch19 = body19.newObject("Sketcher::SketchObject", "Sketch018")
sketch19.AttachmentSupport = (doc.getObject("XZ_Plane018"), [""])
sketch19.MapMode = "FlatFace"
sketch19.AttachmentOffset = App.Placement(V(0, 0, 1.75 * 25.4), App.Rotation())
sketch19.addGeometry([
    Part.LineSegment(V(-610, -140, 0), V(-610, -229, 0)),
    Part.LineSegment(V(-610, -229, 0), V(610, -229, 0)),
    Part.LineSegment(V(610, -229, 0), V(610, -140, 0)),
    Part.LineSegment(V(610, -140, 0), V(-610, -140, 0)),
], False)
sketch19.addConstraint([
    Sketcher.Constraint("Coincident", 0, 2, 1, 1),
    Sketcher.Constraint("Coincident", 1, 2, 2, 1),
    Sketcher.Constraint("Coincident", 2, 2, 3, 1),
    Sketcher.Constraint("Coincident", 3, 2, 0, 1),
    Sketcher.Constraint("Vertical", 0),
    Sketcher.Constraint("Horizontal", 1),
    Sketcher.Constraint("Vertical", 2),
    Sketcher.Constraint("Horizontal", 3),
    Sketcher.Constraint("DistanceX", 1, 1, 1, 2, Q("48 in")),
    Sketcher.Constraint("DistanceY", 0, 2, 0, 1, Q("3.5 in")),
    Sketcher.Constraint("DistanceX", 0, 2, -1, 1, Q("24 in")),
    Sketcher.Constraint("DistanceY", 0, 2, -1, 1, Q("9 in")),
])
pad19 = body19.newObject("PartDesign::Pad", "Pad018")
pad19.Profile = sketch19
pad19.Length = Q("0.5 in")
body20 = doc.addObject("PartDesign::Body", "Body019")
body20.AllowCompound = True

# Sketch on YZ plane
sketch20 = body20.newObject("Sketcher::SketchObject", "Sketch019")
sketch20.AttachmentSupport = (doc.getObject("YZ_Plane019"), [""])
sketch20.MapMode = "FlatFace"
sketch20.AttachmentOffset = App.Placement(V(0, 0, 24 * 25.4), App.Rotation())
sketch20.addGeometry([
    Part.LineSegment(V(-44, 457, 0), V(-44, 229, 0)),  # 0
    Part.LineSegment(V(-44, 229, 0), V(-25, 229, 0)),  # 1
    Part.ArcOfCircle(Part.Circle(V(-25, 248, 0), V(0, 0, 1), 19), math.radians(-90), math.radians(0)),  # 2
    Part.LineSegment(V(-6, 248, 0), V(-6, 438, 0)),  # 3
    Part.ArcOfCircle(Part.Circle(V(-25, 438, 0), V(0, 0, 1), 19), math.radians(0), math.radians(90)),  # 4
    Part.LineSegment(V(-25, 457, 0), V(-44, 457, 0)),  # 5
    Part.LineSegment(V(-44, -229, 0), V(-44, -457, 0)),  # 6
    Part.LineSegment(V(-44, -457, 0), V(-25, -457, 0)),  # 7
    Part.ArcOfCircle(Part.Circle(V(-25, -438, 0), V(0, 0, 1), 19), math.radians(-90), math.radians(0)),  # 8
    Part.LineSegment(V(-6, -438, 0), V(-6, -248, 0)),  # 9
    Part.ArcOfCircle(Part.Circle(V(-25, -248, 0), V(0, 0, 1), 19), math.radians(0), math.radians(90)),  # 10
    Part.LineSegment(V(-25, -229, 0), V(-44, -229, 0)),  # 11
], False)
sketch20.addConstraint([
    Sketcher.Constraint("Coincident", 0, 2, 1, 1),
    Sketcher.Constraint("Tangent", 1, 2, 2, 1),
    Sketcher.Constraint("Tangent", 2, 2, 3, 1),
    Sketcher.Constraint("Tangent", 3, 2, 4, 1),
    Sketcher.Constraint("Tangent", 4, 2, 5, 1),
    Sketcher.Constraint("Coincident", 5, 2, 0, 1),
    Sketcher.Constraint("Coincident", 6, 2, 7, 1),
    Sketcher.Constraint("Tangent", 7, 2, 8, 1),
    Sketcher.Constraint("Tangent", 8, 2, 9, 1),
    Sketcher.Constraint("Tangent", 9, 2, 10, 1),
    Sketcher.Constraint("Tangent", 10, 2, 11, 1),
    Sketcher.Constraint("Coincident", 11, 2, 6, 1),
    Sketcher.Constraint("Vertical", 0),
    Sketcher.Constraint("Horizontal", 1),
    Sketcher.Constraint("Vertical", 3),
    Sketcher.Constraint("Horizontal", 5),
    Sketcher.Constraint("Vertical", 6),
    Sketcher.Constraint("Horizontal", 7),
    Sketcher.Constraint("Vertical", 9),
    Sketcher.Constraint("Horizontal", 11),
    Sketcher.Constraint("Equal", 2, 4),
    Sketcher.Constraint("Equal", 4, 8),
    Sketcher.Constraint("Equal", 8, 10),
    Sketcher.Constraint("Symmetric", 4, 3, 8, 3, -1),
    Sketcher.Constraint("Symmetric", 0, 2, 11, 2, -1),
    Sketcher.Constraint("DistanceY", 0, 2, 0, 1, Q("9 in")),
    Sketcher.Constraint("Radius", 2, Q("0.75 in")),
    Sketcher.Constraint("DistanceX", 2, 3, -1, 1, Q("1 in")),
    Sketcher.Constraint("DistanceY", -1, 1, 0, 2, Q("9 in")),
    Sketcher.Constraint("DistanceX", 1, 1, 1, 2, Q("0.75 in")),
])
pad20 = body20.newObject("PartDesign::Pad", "Pad019")
pad20.Profile = sketch20
pad20.Type = "TwoLengths"
pad20.Length = 1526.071186
pad20.Length2 = 1526.071186
doc.recompute()

body21 = doc.addObject("PartDesign::Body", "Body020")
body21.BaseFeature = body20
boolean = body.newObject("PartDesign::Boolean", "Boolean")
boolean.Type = "Cut"
boolean.addObjects([body21])
doc.recompute()

body22 = doc.addObject("PartDesign::Body", "Body021")
body22.BaseFeature = body20
boolean2 = body2.newObject("PartDesign::Boolean", "Boolean001")
boolean2.Type = "Cut"
boolean2.addObjects([body22])
doc.recompute()

body23 = doc.addObject("PartDesign::Body", "Body022")
body23.BaseFeature = body20
boolean3 = body3.newObject("PartDesign::Boolean", "Boolean002")
boolean3.Type = "Cut"
boolean3.addObjects([body23])
doc.recompute()

body24 = doc.addObject("PartDesign::Body", "Body023")
body24.BaseFeature = body20
boolean4 = body4.newObject("PartDesign::Boolean", "Boolean003")
boolean4.Type = "Cut"
boolean4.addObjects([body24])
doc.recompute()

boolean5 = body5.newObject("PartDesign::Boolean", "Boolean004")
boolean5.Type = "Cut"
boolean5.addObjects([body20])

doc.recompute()
